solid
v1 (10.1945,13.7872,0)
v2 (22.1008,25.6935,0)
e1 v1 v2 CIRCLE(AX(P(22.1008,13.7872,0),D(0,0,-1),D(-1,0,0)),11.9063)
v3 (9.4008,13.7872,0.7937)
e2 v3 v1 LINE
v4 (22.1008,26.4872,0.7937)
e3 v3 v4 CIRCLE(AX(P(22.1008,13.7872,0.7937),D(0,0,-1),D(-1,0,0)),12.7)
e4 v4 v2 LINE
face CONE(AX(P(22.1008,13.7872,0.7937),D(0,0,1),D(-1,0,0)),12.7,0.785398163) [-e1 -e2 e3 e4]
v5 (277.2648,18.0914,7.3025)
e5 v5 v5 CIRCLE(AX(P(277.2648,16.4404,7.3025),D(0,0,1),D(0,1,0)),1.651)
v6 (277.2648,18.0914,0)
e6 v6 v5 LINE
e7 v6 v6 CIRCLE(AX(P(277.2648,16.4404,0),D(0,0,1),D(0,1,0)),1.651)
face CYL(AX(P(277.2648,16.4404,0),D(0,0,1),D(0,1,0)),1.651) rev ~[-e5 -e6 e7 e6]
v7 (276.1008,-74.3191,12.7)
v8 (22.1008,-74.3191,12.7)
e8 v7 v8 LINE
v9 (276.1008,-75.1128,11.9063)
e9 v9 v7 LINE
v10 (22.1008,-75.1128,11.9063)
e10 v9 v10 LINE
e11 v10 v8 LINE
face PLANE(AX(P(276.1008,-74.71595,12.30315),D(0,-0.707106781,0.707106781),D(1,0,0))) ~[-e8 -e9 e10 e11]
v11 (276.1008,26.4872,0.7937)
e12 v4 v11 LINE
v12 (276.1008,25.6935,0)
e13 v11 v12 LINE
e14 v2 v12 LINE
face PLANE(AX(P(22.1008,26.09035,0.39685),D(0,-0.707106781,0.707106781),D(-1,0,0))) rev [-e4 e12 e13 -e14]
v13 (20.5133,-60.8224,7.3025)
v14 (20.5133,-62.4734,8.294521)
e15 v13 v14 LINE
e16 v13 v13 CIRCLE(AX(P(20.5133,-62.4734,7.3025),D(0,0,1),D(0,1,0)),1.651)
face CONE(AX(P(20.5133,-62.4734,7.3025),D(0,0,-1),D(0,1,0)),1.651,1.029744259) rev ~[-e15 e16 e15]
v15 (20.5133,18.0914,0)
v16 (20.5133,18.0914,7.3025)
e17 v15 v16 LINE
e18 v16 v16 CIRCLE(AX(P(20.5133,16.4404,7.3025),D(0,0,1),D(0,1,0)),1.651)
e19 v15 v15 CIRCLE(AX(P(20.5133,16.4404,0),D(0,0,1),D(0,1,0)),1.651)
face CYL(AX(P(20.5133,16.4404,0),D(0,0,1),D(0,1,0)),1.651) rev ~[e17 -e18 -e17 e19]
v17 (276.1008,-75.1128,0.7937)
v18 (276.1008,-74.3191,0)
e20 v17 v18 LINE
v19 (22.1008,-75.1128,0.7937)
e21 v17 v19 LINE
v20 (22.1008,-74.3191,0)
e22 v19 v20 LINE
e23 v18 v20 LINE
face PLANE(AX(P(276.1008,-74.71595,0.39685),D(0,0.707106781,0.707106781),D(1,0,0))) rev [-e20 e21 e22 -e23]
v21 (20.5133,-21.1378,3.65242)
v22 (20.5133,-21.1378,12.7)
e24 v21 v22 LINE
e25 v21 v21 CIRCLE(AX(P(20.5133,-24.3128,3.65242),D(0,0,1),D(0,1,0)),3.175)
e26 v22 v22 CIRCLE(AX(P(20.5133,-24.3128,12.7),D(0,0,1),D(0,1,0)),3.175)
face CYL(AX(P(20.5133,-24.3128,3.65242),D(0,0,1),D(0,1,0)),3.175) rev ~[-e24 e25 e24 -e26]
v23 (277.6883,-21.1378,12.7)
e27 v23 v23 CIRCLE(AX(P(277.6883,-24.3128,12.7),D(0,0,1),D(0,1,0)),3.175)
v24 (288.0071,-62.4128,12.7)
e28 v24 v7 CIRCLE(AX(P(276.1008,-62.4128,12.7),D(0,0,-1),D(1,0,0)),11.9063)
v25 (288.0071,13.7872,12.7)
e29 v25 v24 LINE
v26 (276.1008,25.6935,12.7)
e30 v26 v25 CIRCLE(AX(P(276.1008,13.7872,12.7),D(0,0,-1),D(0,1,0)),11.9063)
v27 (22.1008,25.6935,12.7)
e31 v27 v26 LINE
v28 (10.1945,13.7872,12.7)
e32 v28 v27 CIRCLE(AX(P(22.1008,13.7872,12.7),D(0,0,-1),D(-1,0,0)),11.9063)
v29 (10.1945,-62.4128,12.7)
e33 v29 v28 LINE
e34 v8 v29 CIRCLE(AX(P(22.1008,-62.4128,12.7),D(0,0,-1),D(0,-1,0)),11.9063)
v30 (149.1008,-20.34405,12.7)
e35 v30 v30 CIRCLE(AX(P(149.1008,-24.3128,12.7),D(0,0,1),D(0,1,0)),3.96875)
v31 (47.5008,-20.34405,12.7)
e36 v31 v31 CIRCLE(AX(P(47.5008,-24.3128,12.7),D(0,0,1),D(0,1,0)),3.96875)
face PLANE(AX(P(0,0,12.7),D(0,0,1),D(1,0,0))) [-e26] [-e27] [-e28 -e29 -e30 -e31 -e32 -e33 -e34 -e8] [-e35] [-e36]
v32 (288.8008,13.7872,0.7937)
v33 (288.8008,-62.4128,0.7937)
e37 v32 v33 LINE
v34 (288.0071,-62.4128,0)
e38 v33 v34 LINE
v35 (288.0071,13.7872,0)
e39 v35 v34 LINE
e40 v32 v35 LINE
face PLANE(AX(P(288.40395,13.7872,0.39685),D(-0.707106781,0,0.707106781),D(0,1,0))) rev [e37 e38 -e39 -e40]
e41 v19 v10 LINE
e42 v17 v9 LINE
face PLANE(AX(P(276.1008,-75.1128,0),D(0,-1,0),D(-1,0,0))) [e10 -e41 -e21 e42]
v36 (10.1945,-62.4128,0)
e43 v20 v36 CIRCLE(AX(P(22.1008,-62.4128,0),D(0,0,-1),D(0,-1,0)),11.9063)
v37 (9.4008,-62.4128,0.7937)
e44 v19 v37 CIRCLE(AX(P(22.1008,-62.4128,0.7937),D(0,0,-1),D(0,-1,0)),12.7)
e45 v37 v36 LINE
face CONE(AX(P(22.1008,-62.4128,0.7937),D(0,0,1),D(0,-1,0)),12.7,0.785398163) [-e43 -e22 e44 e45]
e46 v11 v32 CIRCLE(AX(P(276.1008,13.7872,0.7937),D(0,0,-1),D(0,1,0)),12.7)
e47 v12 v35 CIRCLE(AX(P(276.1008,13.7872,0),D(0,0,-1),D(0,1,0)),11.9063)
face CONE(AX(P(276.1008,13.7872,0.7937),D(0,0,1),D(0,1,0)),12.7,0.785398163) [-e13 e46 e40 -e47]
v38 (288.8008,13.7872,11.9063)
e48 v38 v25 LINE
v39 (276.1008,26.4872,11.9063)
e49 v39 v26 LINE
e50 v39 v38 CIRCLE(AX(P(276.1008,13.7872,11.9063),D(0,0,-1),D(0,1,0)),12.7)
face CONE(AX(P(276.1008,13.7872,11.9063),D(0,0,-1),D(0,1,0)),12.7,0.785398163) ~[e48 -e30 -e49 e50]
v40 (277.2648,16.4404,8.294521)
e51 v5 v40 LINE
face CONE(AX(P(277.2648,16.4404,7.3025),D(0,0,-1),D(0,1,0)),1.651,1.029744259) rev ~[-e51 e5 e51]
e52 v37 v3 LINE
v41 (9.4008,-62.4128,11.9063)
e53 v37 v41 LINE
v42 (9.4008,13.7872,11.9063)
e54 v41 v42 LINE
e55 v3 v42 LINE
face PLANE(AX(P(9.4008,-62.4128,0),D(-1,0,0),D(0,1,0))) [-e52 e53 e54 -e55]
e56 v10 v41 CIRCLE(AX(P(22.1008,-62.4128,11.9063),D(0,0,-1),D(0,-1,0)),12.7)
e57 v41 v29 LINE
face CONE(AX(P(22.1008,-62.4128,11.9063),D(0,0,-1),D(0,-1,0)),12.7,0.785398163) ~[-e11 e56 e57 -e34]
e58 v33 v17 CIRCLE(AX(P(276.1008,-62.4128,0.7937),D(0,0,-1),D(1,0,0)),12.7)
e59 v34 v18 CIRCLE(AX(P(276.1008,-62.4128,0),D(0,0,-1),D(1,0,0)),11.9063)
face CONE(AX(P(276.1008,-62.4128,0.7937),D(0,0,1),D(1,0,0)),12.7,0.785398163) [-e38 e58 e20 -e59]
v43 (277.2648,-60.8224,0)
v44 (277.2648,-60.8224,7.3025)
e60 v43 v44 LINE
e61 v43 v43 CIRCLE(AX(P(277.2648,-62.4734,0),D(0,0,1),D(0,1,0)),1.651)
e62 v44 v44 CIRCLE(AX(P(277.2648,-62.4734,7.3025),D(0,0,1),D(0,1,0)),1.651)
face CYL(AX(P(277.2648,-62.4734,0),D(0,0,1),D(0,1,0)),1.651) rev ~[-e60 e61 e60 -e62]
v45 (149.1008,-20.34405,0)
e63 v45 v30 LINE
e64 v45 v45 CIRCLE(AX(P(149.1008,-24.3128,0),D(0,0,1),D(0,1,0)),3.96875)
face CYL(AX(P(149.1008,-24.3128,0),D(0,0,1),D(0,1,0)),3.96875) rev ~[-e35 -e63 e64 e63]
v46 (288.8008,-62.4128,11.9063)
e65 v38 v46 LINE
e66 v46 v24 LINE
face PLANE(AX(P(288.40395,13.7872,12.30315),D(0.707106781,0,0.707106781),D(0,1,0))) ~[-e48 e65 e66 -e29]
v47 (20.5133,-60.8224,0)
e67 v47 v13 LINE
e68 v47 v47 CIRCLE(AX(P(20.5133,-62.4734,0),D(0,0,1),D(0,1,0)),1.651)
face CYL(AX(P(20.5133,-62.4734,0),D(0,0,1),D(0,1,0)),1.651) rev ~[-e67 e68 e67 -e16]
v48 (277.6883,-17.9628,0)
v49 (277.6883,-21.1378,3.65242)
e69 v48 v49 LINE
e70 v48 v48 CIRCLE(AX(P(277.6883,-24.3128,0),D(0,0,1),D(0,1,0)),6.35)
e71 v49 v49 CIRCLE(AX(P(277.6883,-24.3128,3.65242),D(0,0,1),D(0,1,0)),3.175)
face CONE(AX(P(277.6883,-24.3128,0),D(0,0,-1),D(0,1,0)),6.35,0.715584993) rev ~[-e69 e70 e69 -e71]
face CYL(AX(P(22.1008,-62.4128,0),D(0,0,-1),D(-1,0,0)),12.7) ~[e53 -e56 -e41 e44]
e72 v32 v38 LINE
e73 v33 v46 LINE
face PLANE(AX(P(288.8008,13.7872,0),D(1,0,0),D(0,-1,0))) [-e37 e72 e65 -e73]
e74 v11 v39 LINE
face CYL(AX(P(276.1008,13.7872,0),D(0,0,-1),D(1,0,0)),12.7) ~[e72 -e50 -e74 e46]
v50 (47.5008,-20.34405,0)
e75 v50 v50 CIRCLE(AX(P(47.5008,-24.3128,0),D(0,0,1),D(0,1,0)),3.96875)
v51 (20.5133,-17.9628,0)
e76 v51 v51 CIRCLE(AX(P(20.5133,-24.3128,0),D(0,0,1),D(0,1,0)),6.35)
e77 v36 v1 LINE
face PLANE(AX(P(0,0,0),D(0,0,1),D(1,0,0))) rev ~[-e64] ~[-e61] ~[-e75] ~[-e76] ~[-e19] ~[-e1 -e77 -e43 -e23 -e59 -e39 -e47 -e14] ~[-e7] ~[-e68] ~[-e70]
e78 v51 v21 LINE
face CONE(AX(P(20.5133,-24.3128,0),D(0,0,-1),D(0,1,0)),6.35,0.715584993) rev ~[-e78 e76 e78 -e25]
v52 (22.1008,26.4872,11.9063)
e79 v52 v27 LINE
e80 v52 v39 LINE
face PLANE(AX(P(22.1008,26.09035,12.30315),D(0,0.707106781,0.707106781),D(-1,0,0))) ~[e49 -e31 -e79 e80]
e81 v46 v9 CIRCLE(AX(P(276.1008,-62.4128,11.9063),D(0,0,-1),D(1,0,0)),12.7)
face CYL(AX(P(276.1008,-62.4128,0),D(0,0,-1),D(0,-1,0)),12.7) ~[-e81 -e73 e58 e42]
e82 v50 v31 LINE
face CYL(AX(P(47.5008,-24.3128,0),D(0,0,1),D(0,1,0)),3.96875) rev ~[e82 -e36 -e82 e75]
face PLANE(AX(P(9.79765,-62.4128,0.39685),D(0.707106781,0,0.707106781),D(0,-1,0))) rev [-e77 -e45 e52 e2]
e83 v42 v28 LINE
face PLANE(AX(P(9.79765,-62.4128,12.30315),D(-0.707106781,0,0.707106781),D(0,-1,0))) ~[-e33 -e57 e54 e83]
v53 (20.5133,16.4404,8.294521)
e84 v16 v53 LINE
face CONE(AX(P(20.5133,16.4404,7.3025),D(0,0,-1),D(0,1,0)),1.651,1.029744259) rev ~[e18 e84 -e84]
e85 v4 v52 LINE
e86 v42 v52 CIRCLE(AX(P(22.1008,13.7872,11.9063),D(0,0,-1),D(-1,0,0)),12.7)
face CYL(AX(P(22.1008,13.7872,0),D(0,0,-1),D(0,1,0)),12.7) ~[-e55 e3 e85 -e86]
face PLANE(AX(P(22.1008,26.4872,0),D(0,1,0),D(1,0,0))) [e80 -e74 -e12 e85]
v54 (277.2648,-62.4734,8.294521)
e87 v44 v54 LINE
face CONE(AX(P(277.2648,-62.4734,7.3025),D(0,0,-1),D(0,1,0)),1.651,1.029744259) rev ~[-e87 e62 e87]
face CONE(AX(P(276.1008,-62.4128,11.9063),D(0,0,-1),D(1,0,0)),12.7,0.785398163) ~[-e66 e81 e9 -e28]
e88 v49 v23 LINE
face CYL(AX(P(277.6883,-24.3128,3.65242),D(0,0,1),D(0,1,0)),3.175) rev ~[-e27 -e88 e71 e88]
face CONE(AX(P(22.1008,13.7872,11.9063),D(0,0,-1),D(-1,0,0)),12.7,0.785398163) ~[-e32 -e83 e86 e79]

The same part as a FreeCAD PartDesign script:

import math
import FreeCAD as App
import Part
import Sketcher
Q = App.Units.Quantity


def edges_at(feature, points):
    """Names of the edges that pass closest to the given points."""
    edges = feature.Shape.Edges
    near = lambda p: min(range(len(edges)), key=lambda i: edges[i].distToShape(Part.Vertex(*p))[0])
    return sorted({f"Edge{near(p) + 1}" for p in points})

doc = App.newDocument("Part")
body = doc.addObject("PartDesign::Body", "Body")

sketch1 = doc.addObject("Sketcher::SketchObject", "Sketch")
body.addObject(sketch1)
sketch1.AttachmentSupport = (doc.XY_Plane, [""])
sketch1.MapMode = "FlatFace"
sketch1.addGeometry([
    Part.LineSegment(App.Vector(276, 26, 0), App.Vector(22, 26, 0)),
    Part.ArcOfCircle(Part.Circle(App.Vector(22, 14, 0), App.Vector(0, 0, 1), 13), math.radians(90), math.radians(180)),
    Part.LineSegment(App.Vector(9, 14, 0), App.Vector(9, -62, 0)),
    Part.ArcOfCircle(Part.Circle(App.Vector(22, -62, 0), App.Vector(0, 0, 1), 13), math.radians(180), math.radians(270)),
    Part.LineSegment(App.Vector(22, -75, 0), App.Vector(276, -75, 0)),
    Part.ArcOfCircle(Part.Circle(App.Vector(276, -62, 0), App.Vector(0, 0, 1), 13), math.radians(-90), math.radians(0)),
    Part.LineSegment(App.Vector(289, -62, 0), App.Vector(289, 14, 0)),
    Part.ArcOfCircle(Part.Circle(App.Vector(276, 14, 0), App.Vector(0, 0, 1), 13), math.radians(0), math.radians(90)),
], False)
sketch1.addConstraint([
    Sketcher.Constraint("Tangent", 0, 2, 1, 1),
    Sketcher.Constraint("Tangent", 1, 2, 2, 1),
    Sketcher.Constraint("Tangent", 2, 2, 3, 1),
    Sketcher.Constraint("Tangent", 3, 2, 4, 1),
    Sketcher.Constraint("Tangent", 4, 2, 5, 1),
    Sketcher.Constraint("Tangent", 5, 2, 6, 1),
    Sketcher.Constraint("Tangent", 6, 2, 7, 1),
    Sketcher.Constraint("Tangent", 7, 2, 0, 1),
    Sketcher.Constraint("Horizontal", 0),
    Sketcher.Constraint("Vertical", 2),
    Sketcher.Constraint("Horizontal", 4),
    Sketcher.Constraint("Vertical", 6),
    Sketcher.Constraint("Equal", 1, 3),
    Sketcher.Constraint("Equal", 3, 5),
    Sketcher.Constraint("Equal", 5, 7),
    Sketcher.Constraint("Radius", 1, Q("0.5 in")),
    Sketcher.Constraint("DistanceY", 3, 2, 0, 2, Q("4 in")),
    Sketcher.Constraint("DistanceX", 0, 2, 0, 1, Q("10 in")),
    Sketcher.Constraint("DistanceX", -1, 1, 1, 3, Q("0.8701 in")),
    Sketcher.Constraint("DistanceY", -1, 1, 1, 3, Q("0.5428 in")),
])
pad1 = doc.addObject("PartDesign::Pad", "Pad")
body.addObject(pad1)
pad1.Profile = sketch1
pad1.Length = Q("0.5 in")
doc.recompute()

chamfer = doc.addObject("PartDesign::Chamfer", "Chamfer")
body.addObject(chamfer)
chamfer.Base = (pad1, edges_at(pad1, [
    (149.101, 26.487, 12.7),
    (13.12, 22.767, 12.7),
    (9.401, -24.313, 12.7),
    (13.12, -71.393, 12.7),
    (149.101, -75.113, 12.7),
    (285.081, -71.393, 12.7),
    (288.801, -24.313, 12.7),
    (285.081, 22.767, 12.7),
    (149.101, 26.487, 0),
    (13.12, 22.767, 0),
    (9.401, -24.313, 0),
    (13.12, -71.393, 0),
    (149.101, -75.113, 0),
    (285.081, -71.393, 0),
    (288.801, -24.313, 0),
    (285.081, 22.767, 0),
]))
chamfer.Size = Q("0.031248 in")

sketch2 = doc.addObject("Sketcher::SketchObject", "Sketch001")
body.addObject(sketch2)
sketch2.AttachmentSupport = (doc.XY_Plane, [""])
sketch2.MapMode = "FlatFace"
sketch2.addGeometry(Part.Circle(App.Vector(20.5, -24.3, 0), App.Vector(0, 0, 1), 3.2), False)
sketch2.addConstraint([
    Sketcher.Constraint("Diameter", 0, Q("0.25 in")),
    Sketcher.Constraint("DistanceX", -1, 1, 0, 3, Q("0.8076 in")),
    Sketcher.Constraint("DistanceY", 0, 3, -1, 1, Q("0.9572 in")),
])
doc.recompute()
hole = doc.addObject("PartDesign::Hole", "Hole")
body.addObject(hole)
hole.Profile = sketch2
hole.ThreadType = "None"
hole.Diameter = Q("0.25 in")
hole.DepthType = "ThroughAll"
hole.HoleCutType = "Countersink"
hole.HoleCutDiameter = Q("0.5 in")
hole.HoleCutCountersinkAngle = 82
hole.Reversed = True

sketch3 = doc.addObject("Sketcher::SketchObject", "Sketch002")
body.addObject(sketch3)
sketch3.AttachmentSupport = (doc.XY_Plane, [""])
sketch3.MapMode = "FlatFace"
sketch3.addGeometry(Part.Circle(App.Vector(277.7, -24.3, 0), App.Vector(0, 0, 1), 3.2), False)
sketch3.addConstraint([
    Sketcher.Constraint("Diameter", 0, Q("0.25 in")),
    Sketcher.Constraint("DistanceX", -1, 1, 0, 3, Q("10.9326 in")),
    Sketcher.Constraint("DistanceY", 0, 3, -1, 1, Q("0.9572 in")),
])
doc.recompute()
hole2 = doc.addObject("PartDesign::Hole", "Hole001")
body.addObject(hole2)
hole2.Profile = sketch3
hole2.ThreadType = "None"
hole2.Diameter = Q("0.25 in")
hole2.DepthType = "ThroughAll"
hole2.HoleCutType = "Countersink"
hole2.HoleCutDiameter = Q("0.5 in")
hole2.HoleCutCountersinkAngle = 82
hole2.Reversed = True

sketch4 = doc.addObject("Sketcher::SketchObject", "Sketch003")
body.addObject(sketch4)
sketch4.AttachmentSupport = (doc.XY_Plane, [""])
sketch4.MapMode = "FlatFace"
sketch4.addGeometry([
    Part.Circle(App.Vector(47.5, -24.3, 0), App.Vector(0, 0, 1), 4),
    Part.Circle(App.Vector(149.1, -24.3, 0), App.Vector(0, 0, 1), 4),
], False)
sketch4.addConstraint([
    Sketcher.Constraint("Equal", 0, 1),
    Sketcher.Constraint("Horizontal", 0, 3, 1, 3),
    Sketcher.Constraint("Diameter", 0, Q("0.3125 in")),
    Sketcher.Constraint("DistanceX", 0, 3, 1, 3, Q("4 in")),
    Sketcher.Constraint("DistanceX", -1, 1, 0, 3, Q("1.8701 in")),
    Sketcher.Constraint("DistanceY", 0, 3, -1, 1, Q("0.9572 in")),
])
doc.recompute()
hole3 = doc.addObject("PartDesign::Hole", "Hole002")
body.addObject(hole3)
hole3.Profile = sketch4
hole3.ThreadType = "None"
hole3.Diameter = Q("0.3125 in")
hole3.DepthType = "ThroughAll"
hole3.Reversed = True

sketch5 = doc.addObject("Sketcher::SketchObject", "Sketch004")
body.addObject(sketch5)
sketch5.AttachmentSupport = (doc.XY_Plane, [""])
sketch5.MapMode = "FlatFace"
sketch5.addGeometry([
    Part.Circle(App.Vector(20.5, 16.4, 0), App.Vector(0, 0, 1), 1.7),
    Part.Circle(App.Vector(20.5, -62.5, 0), App.Vector(0, 0, 1), 1.7),
    Part.Circle(App.Vector(277.3, -62.5, 0), App.Vector(0, 0, 1), 1.7),
    Part.Circle(App.Vector(277.3, 16.4, 0), App.Vector(0, 0, 1), 1.7),
], False)
sketch5.addConstraint([
    Sketcher.Constraint("Equal", 0, 1),
    Sketcher.Constraint("Equal", 1, 2),
    Sketcher.Constraint("Equal", 2, 3),
    Sketcher.Constraint("Horizontal", 1, 3, 2, 3),
    Sketcher.Constraint("Horizontal", 0, 3, 3, 3),
    Sketcher.Constraint("Vertical", 0, 3, 1, 3),
    Sketcher.Constraint("Vertical", 2, 3, 3, 3),
    Sketcher.Constraint("Diameter", 0, Q("0.13 in")),
    Sketcher.Constraint("DistanceX", -1, 1, 0, 3, Q("0.8076 in")),
    Sketcher.Constraint("DistanceY", -1, 1, 0, 3, Q("16.4404 mm")),
    Sketcher.Constraint("DistanceY", 1, 3, -1, 1, Q("62.4734 mm")),
    Sketcher.Constraint("DistanceX", -1, 1, 2, 3, Q("277.2648 mm")),
])
doc.recompute()
hole4 = doc.addObject("PartDesign::Hole", "Hole003")
body.addObject(hole4)
hole4.Profile = sketch5
hole4.ThreadType = "None"
hole4.Diameter = Q("0.13 in")
hole4.DepthType = "Dimension"
hole4.Depth = Q("0.2875 in")
hole4.DrillPoint = "Angled"
hole4.DrillPointAngle = 118
hole4.Reversed = True

doc.recompute()
